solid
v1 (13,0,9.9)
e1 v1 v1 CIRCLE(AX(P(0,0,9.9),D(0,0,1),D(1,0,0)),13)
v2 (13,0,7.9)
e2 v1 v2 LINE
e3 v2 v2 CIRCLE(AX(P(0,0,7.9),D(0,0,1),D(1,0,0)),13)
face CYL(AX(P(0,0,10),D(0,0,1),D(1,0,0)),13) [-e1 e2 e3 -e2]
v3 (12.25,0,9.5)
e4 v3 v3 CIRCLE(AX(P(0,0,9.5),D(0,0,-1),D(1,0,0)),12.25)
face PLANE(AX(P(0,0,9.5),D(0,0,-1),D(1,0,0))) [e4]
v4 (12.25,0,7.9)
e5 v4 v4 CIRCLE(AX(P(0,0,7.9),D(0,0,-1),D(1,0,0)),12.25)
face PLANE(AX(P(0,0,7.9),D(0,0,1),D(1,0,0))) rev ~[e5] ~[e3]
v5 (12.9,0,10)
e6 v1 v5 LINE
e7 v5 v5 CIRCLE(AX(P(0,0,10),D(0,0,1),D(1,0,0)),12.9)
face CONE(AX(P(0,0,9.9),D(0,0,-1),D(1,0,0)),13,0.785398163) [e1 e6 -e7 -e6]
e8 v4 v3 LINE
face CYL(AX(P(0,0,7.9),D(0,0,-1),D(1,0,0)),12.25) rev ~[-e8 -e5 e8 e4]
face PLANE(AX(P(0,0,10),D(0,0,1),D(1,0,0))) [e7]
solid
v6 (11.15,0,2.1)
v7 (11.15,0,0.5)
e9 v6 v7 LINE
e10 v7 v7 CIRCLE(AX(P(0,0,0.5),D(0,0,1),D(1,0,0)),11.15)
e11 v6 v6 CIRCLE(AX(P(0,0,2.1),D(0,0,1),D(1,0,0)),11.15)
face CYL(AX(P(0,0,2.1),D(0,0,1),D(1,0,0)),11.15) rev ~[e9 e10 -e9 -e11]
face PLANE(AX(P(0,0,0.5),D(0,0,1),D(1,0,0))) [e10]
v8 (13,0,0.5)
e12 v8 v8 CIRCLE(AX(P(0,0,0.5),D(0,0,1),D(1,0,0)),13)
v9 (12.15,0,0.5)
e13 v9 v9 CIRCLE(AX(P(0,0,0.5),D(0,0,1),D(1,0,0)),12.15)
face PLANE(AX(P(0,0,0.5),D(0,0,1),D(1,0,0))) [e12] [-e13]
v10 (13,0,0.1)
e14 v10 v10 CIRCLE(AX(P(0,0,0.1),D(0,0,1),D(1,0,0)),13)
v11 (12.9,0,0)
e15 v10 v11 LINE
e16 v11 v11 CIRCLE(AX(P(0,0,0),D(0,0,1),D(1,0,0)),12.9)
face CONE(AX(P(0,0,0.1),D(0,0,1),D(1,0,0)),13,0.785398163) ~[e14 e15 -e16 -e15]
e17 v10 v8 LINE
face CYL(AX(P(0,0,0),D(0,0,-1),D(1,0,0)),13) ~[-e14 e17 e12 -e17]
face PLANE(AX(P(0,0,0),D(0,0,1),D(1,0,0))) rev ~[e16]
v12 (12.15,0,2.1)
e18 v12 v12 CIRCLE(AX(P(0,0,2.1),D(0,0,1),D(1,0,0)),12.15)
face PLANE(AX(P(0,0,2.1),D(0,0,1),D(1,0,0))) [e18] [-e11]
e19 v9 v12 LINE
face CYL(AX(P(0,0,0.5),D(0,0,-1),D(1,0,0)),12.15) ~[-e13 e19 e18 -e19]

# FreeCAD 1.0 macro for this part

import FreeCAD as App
import Part
import Sketcher

V = App.Vector
Q = App.Units.Quantity


def edges_at(feature, points):
    """Names of the edges that pass closest to the given points."""
    edges = feature.Shape.Edges
    near = lambda p: min(range(len(edges)), key=lambda i: edges[i].distToShape(Part.Vertex(*p))[0])
    return sorted({f"Edge{near(p) + 1}" for p in points})

doc = App.newDocument("Part")
params = doc.addObject("Spreadsheet::Sheet", "Params")
for row, (alias, value) in enumerate([
    ("sketch1_diameter", "26 mm"),
    ("pad1_length", "0.5 mm"),
    ("sketch2_diameter", "24.3 mm"),
    ("pad2_length", "1.6 mm"),
    ("sketch3_diameter", "22.3 mm"),
    ("pocket1_length", "1.6 mm"),
    ("chamfer_size", "0.1 mm"),
    ("sketch4_diameter", "26 mm"),
    ("pad3_length", "2.1 mm"),
    ("sketch5_diameter", "24.5 mm"),
    ("pocket2_length", "1.6 mm"),
    ("chamfer2_size", "0.1 mm"),
], start=1):
    params.set(f"A{row}", alias)
    params.set(f"B{row}", "=" + value)
    params.setAlias(f"B{row}", alias)

body = doc.addObject("PartDesign::Body", "Body")

# Sketch on XY plane
sketch1 = body.newObject("Sketcher::SketchObject", "Sketch")
sketch1.AttachmentSupport = (doc.getObject("XY_Plane"), [""])
sketch1.MapMode = "FlatFace"
sketch1.addGeometry(Part.Circle(V(0, 0, 0), V(0, 0, 1), 13), False)
sketch1.addConstraint([
    Sketcher.Constraint("Coincident", 0, 3, -1, 1),
    Sketcher.Constraint("Diameter", 0, Q("26 mm")),
])
sketch1.setExpression("Constraints[1]", "Params.sketch1_diameter")
pad1 = body.newObject("PartDesign::Pad", "Pad")
pad1.Profile = sketch1
pad1.setExpression("Length", "Params.pad1_length")

# Sketch on XY plane
sketch2 = body.newObject("Sketcher::SketchObject", "Sketch001")
sketch2.AttachmentSupport = (doc.getObject("XY_Plane"), [""])
sketch2.MapMode = "FlatFace"
sketch2.AttachmentOffset = App.Placement(V(0, 0, 0.5), App.Rotation())
sketch2.addGeometry(Part.Circle(V(0, 0, 0), V(0, 0, 1), 12.15), False)
sketch2.addConstraint([
    Sketcher.Constraint("Coincident", 0, 3, -1, 1),
    Sketcher.Constraint("Diameter", 0, Q("24.3 mm")),
])
sketch2.setExpression("Constraints[1]", "Params.sketch2_diameter")
pad2 = body.newObject("PartDesign::Pad", "Pad001")
pad2.Profile = sketch2
pad2.setExpression("Length", "Params.pad2_length")

# Sketch on XY plane
sketch3 = body.newObject("Sketcher::SketchObject", "Sketch002")
sketch3.AttachmentSupport = (doc.getObject("XY_Plane"), [""])
sketch3.MapMode = "FlatFace"
sketch3.AttachmentOffset = App.Placement(V(0, 0, 2.1), App.Rotation())
sketch3.addGeometry(Part.Circle(V(0, 0, 0), V(0, 0, 1), 11.15), False)
sketch3.addConstraint([
    Sketcher.Constraint("Coincident", 0, 3, -1, 1),
    Sketcher.Constraint("Diameter", 0, Q("22.3 mm")),
])
sketch3.setExpression("Constraints[1]", "Params.sketch3_diameter")
pocket1 = body.newObject("PartDesign::Pocket", "Pocket")
pocket1.Profile = sketch3
pocket1.setExpression("Length", "Params.pocket1_length")
doc.recompute()

chamfer = body.newObject("PartDesign::Chamfer", "Chamfer")
chamfer.Base = (pocket1, edges_at(pocket1, [(-13, 0, 0)]))
chamfer.setExpression("Size", "Params.chamfer_size")
body2 = doc.addObject("PartDesign::Body", "Body001")

# Sketch on XY plane
sketch4 = body2.newObject("Sketcher::SketchObject", "Sketch003")
sketch4.AttachmentSupport = (doc.getObject("XY_Plane001"), [""])
sketch4.MapMode = "FlatFace"
sketch4.AttachmentOffset = App.Placement(V(0, 0, 10), App.Rotation())
sketch4.addGeometry(Part.Circle(V(0, 0, 0), V(0, 0, 1), 13), False)
sketch4.addConstraint([
    Sketcher.Constraint("Coincident", 0, 3, -1, 1),
    Sketcher.Constraint("Diameter", 0, Q("26 mm")),
])
sketch4.setExpression("Constraints[1]", "Params.sketch4_diameter")
pad3 = body2.newObject("PartDesign::Pad", "Pad002")
pad3.Profile = sketch4
pad3.setExpression("Length", "Params.pad3_length")
pad3.Reversed = True

# Sketch on XY plane
sketch5 = body2.newObject("Sketcher::SketchObject", "Sketch004")
sketch5.AttachmentSupport = (doc.getObject("XY_Plane001"), [""])
sketch5.MapMode = "FlatFace"
sketch5.AttachmentOffset = App.Placement(V(0, 0, 7.9), App.Rotation())
sketch5.addGeometry(Part.Circle(V(0, 0, 0), V(0, 0, 1), 12.25), False)
sketch5.addConstraint([
    Sketcher.Constraint("Coincident", 0, 3, -1, 1),
    Sketcher.Constraint("Diameter", 0, Q("24.5 mm")),
])
sketch5.setExpression("Constraints[1]", "Params.sketch5_diameter")
pocket2 = body2.newObject("PartDesign::Pocket", "Pocket001")
pocket2.Profile = sketch5
pocket2.setExpression("Length", "Params.pocket2_length")
pocket2.Reversed = True
doc.recompute()

chamfer2 = body2.newObject("PartDesign::Chamfer", "Chamfer001")
chamfer2.Base = (pocket2, edges_at(pocket2, [(-13, 0, 10)]))
chamfer2.setExpression("Size", "Params.chamfer2_size")

doc.recompute()
